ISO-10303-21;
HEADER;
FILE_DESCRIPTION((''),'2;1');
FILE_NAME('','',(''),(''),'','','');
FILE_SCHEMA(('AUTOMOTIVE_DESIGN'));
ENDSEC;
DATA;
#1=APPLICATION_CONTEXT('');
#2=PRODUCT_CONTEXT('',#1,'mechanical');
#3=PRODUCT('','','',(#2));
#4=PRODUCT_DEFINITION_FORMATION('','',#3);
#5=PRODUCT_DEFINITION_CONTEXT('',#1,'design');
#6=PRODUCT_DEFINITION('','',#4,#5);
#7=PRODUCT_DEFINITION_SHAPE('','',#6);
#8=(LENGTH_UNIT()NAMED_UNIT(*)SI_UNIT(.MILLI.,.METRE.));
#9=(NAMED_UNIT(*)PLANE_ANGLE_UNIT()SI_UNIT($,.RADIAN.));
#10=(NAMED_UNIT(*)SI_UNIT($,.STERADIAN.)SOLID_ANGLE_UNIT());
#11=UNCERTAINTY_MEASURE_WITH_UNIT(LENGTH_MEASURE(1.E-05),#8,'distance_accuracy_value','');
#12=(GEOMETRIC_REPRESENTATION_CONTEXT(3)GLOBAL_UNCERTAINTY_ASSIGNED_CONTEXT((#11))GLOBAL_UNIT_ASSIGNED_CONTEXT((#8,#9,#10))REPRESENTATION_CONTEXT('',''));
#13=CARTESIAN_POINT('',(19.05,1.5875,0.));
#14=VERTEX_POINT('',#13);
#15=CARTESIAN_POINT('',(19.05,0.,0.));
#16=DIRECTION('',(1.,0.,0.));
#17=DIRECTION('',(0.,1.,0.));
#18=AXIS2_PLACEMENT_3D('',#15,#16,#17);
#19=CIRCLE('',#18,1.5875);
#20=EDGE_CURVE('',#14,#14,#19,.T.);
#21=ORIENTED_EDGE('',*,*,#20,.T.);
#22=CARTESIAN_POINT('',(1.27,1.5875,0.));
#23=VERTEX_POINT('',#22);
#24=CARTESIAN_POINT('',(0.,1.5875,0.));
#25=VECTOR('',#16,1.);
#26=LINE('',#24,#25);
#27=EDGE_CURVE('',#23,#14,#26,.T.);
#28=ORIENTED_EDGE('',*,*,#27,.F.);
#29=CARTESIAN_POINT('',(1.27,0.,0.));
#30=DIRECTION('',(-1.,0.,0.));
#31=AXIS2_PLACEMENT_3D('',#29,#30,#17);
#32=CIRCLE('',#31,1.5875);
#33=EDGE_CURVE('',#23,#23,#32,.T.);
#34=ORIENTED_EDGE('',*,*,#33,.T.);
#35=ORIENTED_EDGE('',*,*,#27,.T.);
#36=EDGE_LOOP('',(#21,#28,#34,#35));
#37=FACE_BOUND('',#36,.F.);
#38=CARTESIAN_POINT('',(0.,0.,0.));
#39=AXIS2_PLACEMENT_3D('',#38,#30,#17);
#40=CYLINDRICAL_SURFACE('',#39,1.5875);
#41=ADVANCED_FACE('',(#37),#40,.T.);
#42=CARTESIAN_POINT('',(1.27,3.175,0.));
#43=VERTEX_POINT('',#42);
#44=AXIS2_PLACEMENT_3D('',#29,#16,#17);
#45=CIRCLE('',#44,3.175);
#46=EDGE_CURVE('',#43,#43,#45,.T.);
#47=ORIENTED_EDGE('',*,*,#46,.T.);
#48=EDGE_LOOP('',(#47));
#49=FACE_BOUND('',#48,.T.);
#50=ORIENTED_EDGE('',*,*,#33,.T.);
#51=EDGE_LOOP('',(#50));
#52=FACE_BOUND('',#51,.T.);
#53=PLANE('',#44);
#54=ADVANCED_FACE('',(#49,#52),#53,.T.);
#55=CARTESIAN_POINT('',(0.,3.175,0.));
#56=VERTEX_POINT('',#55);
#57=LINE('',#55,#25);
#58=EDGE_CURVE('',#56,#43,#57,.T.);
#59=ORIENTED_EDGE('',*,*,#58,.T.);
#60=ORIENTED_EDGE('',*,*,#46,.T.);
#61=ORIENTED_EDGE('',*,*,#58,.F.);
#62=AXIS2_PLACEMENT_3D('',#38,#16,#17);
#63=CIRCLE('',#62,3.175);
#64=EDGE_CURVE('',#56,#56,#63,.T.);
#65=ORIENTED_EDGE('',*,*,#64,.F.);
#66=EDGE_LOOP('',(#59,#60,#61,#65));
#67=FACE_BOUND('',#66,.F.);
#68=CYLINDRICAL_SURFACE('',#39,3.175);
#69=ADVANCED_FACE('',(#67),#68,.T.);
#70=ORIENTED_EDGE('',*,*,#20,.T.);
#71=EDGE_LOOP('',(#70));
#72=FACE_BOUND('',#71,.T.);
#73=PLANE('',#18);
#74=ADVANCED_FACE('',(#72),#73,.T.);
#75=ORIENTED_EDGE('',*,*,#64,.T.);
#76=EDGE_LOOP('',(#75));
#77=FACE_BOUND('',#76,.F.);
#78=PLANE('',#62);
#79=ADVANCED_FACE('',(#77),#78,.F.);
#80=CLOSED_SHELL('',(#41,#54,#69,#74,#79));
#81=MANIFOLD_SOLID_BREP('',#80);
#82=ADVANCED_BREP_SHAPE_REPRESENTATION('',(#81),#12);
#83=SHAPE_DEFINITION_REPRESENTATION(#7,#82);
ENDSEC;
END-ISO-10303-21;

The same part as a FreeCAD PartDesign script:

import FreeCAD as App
import Part
import Sketcher
Q = App.Units.Quantity

doc = App.newDocument("Part")
body = doc.addObject("PartDesign::Body", "Body")

# Sketch on YZ plane
sketch1 = body.newObject("Sketcher::SketchObject", "Sketch")
sketch1.AttachmentSupport = (doc.getObject("YZ_Plane"), [""])
sketch1.MapMode = "FlatFace"
sketch1.addGeometry(Part.Circle(App.Vector(0, 0, 0), App.Vector(0, 0, 1), 1.6), False)
sketch1.addConstraint([
    Sketcher.Constraint("Coincident", 0, 3, -1, 1),
    Sketcher.Constraint("Diameter", 0, Q("0.125 in")),
])
pad1 = body.newObject("PartDesign::Pad", "Pad")
pad1.Profile = sketch1
pad1.Length = Q("0.75 in")

# Sketch on YZ plane
sketch2 = body.newObject("Sketcher::SketchObject", "Sketch001")
sketch2.AttachmentSupport = (doc.getObject("YZ_Plane"), [""])
sketch2.MapMode = "FlatFace"
sketch2.addGeometry(Part.Circle(App.Vector(0, 0, 0), App.Vector(0, 0, 1), 3.2), False)
sketch2.addConstraint([
    Sketcher.Constraint("Coincident", 0, 3, -1, 1),
    Sketcher.Constraint("Diameter", 0, Q("0.25 in")),
])
pad2 = body.newObject("PartDesign::Pad", "Pad001")
pad2.Profile = sketch2
pad2.Length = Q("0.05 in")

doc.recompute()
